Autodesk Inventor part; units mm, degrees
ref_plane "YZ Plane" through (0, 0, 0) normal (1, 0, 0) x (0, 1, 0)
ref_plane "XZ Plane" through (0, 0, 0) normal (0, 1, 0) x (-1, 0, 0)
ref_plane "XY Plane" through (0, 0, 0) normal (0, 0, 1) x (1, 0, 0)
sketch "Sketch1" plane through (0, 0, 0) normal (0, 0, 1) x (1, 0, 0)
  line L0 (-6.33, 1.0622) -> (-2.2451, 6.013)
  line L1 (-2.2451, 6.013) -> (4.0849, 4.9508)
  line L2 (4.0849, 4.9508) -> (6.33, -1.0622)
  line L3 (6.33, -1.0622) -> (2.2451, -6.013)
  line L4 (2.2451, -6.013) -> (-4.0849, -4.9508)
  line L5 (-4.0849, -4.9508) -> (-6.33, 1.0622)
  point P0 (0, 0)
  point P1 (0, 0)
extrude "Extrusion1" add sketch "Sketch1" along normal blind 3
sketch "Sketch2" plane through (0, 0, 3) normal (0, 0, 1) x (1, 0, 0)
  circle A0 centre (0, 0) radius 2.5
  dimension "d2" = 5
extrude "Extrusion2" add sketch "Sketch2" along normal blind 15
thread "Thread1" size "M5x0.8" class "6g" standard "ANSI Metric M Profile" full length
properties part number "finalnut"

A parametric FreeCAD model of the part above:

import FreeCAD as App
import Part
import Sketcher
Q = App.Units.Quantity

doc = App.newDocument("Part")
body = doc.addObject("PartDesign::Body", "Body")

sketch1 = body.newObject("Sketcher::SketchObject", "Sketch")
sketch1.AttachmentSupport = (doc.getObject("XY_Plane"), [""])
sketch1.MapMode = "FlatFace"
sketch1.addGeometry([
    Part.LineSegment(App.Vector(-2, 6, 0), App.Vector(-6, 1, 0)),
    Part.LineSegment(App.Vector(-6, 1, 0), App.Vector(-4, -5, 0)),
    Part.LineSegment(App.Vector(-4, -5, 0), App.Vector(2, -6, 0)),
    Part.LineSegment(App.Vector(2, -6, 0), App.Vector(6, -1, 0)),
    Part.LineSegment(App.Vector(6, -1, 0), App.Vector(4, 5, 0)),
    Part.LineSegment(App.Vector(4, 5, 0), App.Vector(-2, 6, 0)),
], False)
sketch1.addConstraint([
    Sketcher.Constraint("Coincident", 0, 2, 1, 1),
    Sketcher.Constraint("Coincident", 1, 2, 2, 1),
    Sketcher.Constraint("Coincident", 2, 2, 3, 1),
    Sketcher.Constraint("Coincident", 3, 2, 4, 1),
    Sketcher.Constraint("Coincident", 4, 2, 5, 1),
    Sketcher.Constraint("Coincident", 5, 2, 0, 1),
    Sketcher.Constraint("Symmetric", 0, 2, 3, 2, -1, 1),
    Sketcher.Constraint("Symmetric", 1, 2, 4, 2, -1, 1),
    Sketcher.Constraint("Symmetric", 2, 2, 5, 2, -1, 1),
    Sketcher.Constraint("Equal", 0, 1),
    Sketcher.Constraint("Equal", 1, 2),
    Sketcher.Constraint("DistanceX", 0, 2, -1, 1, Q("6.33 mm")),
    Sketcher.Constraint("DistanceX", 1, 2, 2, 2, Q("6.33 mm")),
    Sketcher.Constraint("DistanceX", 1, 2, -1, 1, Q("4.085 mm")),
    Sketcher.Constraint("DistanceY", 2, 2, -1, 1, Q("6.013 mm")),
])
pad1 = body.newObject("PartDesign::Pad", "Pad")
pad1.Profile = sketch1
pad1.Length = 3

sketch2 = body.newObject("Sketcher::SketchObject", "Sketch001")
sketch2.AttachmentSupport = (doc.getObject("XY_Plane"), [""])
sketch2.MapMode = "FlatFace"
sketch2.AttachmentOffset = App.Placement(App.Vector(0, 0, 3), App.Rotation())
sketch2.addGeometry(Part.Circle(App.Vector(0, 0, 0), App.Vector(0, 0, 1), 2.5), False)
sketch2.addConstraint([
    Sketcher.Constraint("Coincident", 0, 3, -1, 1),
    Sketcher.Constraint("Diameter", 0, Q("5 mm")),
])
pad2 = body.newObject("PartDesign::Pad", "Pad001")
pad2.Profile = sketch2
pad2.Length = 15

doc.recompute()
